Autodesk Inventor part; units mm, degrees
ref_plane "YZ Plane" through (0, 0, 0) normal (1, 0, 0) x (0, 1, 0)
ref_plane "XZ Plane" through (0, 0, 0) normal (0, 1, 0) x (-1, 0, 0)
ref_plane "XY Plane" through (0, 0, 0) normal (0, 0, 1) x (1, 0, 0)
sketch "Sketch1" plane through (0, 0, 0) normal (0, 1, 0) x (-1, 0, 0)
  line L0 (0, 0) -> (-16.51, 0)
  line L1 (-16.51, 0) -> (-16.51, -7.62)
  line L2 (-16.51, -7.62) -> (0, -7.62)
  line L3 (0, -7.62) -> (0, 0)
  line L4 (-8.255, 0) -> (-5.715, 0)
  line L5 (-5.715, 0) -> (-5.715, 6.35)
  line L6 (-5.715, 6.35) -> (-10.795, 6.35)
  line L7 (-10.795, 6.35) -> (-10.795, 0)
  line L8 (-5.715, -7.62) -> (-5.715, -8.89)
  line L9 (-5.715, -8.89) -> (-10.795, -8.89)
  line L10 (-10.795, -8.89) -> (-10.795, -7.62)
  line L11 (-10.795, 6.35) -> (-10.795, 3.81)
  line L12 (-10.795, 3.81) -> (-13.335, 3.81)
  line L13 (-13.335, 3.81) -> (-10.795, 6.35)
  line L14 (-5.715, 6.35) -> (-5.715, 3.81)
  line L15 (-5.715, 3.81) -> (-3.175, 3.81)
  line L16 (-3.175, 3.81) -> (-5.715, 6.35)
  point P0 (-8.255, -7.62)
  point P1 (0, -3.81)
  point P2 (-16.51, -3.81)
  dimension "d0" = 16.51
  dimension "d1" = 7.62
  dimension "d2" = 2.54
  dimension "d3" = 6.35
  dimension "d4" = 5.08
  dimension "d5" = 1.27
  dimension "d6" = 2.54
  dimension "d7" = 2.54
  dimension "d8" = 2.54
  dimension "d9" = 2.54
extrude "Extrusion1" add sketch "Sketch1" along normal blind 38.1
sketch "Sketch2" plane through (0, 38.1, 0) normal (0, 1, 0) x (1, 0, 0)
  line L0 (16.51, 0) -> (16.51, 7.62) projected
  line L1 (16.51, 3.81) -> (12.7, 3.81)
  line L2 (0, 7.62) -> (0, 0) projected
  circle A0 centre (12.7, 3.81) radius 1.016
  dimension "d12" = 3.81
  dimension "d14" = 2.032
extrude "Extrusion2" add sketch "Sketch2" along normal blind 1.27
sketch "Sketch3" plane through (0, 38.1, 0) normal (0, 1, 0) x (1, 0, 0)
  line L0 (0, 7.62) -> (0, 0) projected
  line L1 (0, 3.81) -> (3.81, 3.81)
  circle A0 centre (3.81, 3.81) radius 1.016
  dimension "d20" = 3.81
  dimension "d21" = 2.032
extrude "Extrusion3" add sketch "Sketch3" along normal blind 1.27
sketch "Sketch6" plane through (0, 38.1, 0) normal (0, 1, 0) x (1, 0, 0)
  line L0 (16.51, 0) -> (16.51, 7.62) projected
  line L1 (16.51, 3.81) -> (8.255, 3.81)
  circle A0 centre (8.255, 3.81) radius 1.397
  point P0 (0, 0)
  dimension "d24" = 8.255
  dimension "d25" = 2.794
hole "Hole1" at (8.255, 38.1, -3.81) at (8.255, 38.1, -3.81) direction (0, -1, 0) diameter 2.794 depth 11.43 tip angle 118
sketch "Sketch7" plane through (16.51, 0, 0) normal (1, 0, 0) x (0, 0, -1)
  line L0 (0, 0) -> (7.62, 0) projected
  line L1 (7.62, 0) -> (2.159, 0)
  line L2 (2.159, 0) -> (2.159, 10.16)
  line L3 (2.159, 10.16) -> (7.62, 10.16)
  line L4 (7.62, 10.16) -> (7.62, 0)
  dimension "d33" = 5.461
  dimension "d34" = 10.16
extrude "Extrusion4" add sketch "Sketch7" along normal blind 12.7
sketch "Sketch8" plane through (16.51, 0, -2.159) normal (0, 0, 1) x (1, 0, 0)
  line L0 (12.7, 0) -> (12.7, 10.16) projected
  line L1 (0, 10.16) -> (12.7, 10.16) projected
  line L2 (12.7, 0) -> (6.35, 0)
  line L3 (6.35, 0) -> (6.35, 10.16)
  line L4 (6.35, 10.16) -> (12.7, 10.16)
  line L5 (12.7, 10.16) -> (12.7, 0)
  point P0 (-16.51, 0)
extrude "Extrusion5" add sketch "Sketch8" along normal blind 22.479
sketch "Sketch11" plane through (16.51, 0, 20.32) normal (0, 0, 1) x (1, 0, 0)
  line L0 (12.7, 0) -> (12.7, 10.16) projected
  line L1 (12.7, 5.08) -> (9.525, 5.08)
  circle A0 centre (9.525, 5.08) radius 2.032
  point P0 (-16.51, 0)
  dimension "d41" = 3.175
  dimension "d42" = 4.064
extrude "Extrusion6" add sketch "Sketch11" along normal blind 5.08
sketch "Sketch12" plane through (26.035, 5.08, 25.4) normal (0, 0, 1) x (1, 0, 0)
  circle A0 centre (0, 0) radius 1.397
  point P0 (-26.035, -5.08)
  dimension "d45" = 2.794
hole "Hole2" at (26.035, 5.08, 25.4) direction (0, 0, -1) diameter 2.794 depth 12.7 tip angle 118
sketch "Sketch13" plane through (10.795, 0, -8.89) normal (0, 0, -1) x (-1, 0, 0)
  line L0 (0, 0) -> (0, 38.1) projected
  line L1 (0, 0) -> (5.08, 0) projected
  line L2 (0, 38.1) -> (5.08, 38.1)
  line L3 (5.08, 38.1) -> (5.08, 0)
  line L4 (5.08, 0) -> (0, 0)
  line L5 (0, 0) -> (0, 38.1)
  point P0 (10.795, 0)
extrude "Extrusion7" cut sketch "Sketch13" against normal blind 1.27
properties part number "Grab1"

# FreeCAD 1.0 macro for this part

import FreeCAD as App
import Part
import Sketcher
Q = App.Units.Quantity

doc = App.newDocument("Part")
params = doc.addObject("Spreadsheet::Sheet", "Params")
for row, (alias, value) in enumerate([
    ("sketch1_width", "0.1 in"),
    ("sketch1_width2", "0.2 in"),
    ("sketch1_height", "0.3 in"),
    ("sketch1_height2", "0.05 in"),
    ("pad1_length", "1.5 in"),
    ("sketch2_diameter", "0.08 in"),
    ("pad2_length", "0.05 in"),
    ("sketch3_diameter", "0.08 in"),
    ("pad3_length", "0.05 in"),
    ("sketch4_diameter", "0.11 in"),
    ("hole_diameter", "0.11 in"),
    ("hole_depth", "0.45 in"),
    ("sketch5_width", "0.4 in"),
    ("sketch5_height", "0.215 in"),
    ("pad4_length", "0.5 in"),
    ("sketch6_height", "0.4 in"),
    ("sketch6_width", "0.25 in"),
    ("pad5_length", "0.885 in"),
    ("sketch7_diameter", "0.16 in"),
    ("pad6_length", "0.2 in"),
    ("sketch8_diameter", "0.11 in"),
    ("hole2_diameter", "0.11 in"),
    ("hole2_depth", "0.5 in"),
    ("sketch9_width", "0.2 in"),
    ("sketch9_height", "1.5 in"),
    ("pocket1_length", "0.05 in"),
], start=1):
    params.set(f"A{row}", alias)
    params.set(f"B{row}", "=" + value)
    params.setAlias(f"B{row}", alias)

body = doc.addObject("PartDesign::Body", "Body")

sketch1 = doc.addObject("Sketcher::SketchObject", "Sketch")
body.addObject(sketch1)
sketch1.AttachmentSupport = (doc.XZ_Plane, [""])
sketch1.MapMode = "FlatFace"
sketch1.addGeometry(Part.LineSegment(App.Vector(0, -7.6, 0), App.Vector(0, 0, 0)), False)
sketch1.addGeometry(Part.LineSegment(App.Vector(0, 0, 0), App.Vector(5.7, 0, 0)), False)
sketch1.addGeometry(Part.LineSegment(App.Vector(5.7, 0, 0), App.Vector(5.7, 3.8, 0)), False)
sketch1.addGeometry(Part.LineSegment(App.Vector(5.7, 3.8, 0), App.Vector(3.2, 3.8, 0)), False)
sketch1.addGeometry(Part.LineSegment(App.Vector(3.2, 3.8, 0), App.Vector(5.7, 6.3, 0)), False)
sketch1.addGeometry(Part.LineSegment(App.Vector(5.7, 6.3, 0), App.Vector(10.8, 6.3, 0)), False)
sketch1.addGeometry(Part.LineSegment(App.Vector(10.8, 6.3, 0), App.Vector(13.3, 3.8, 0)), False)
sketch1.addGeometry(Part.LineSegment(App.Vector(13.3, 3.8, 0), App.Vector(10.8, 3.8, 0)), False)
sketch1.addGeometry(Part.LineSegment(App.Vector(10.8, 3.8, 0), App.Vector(10.8, 0, 0)), False)
sketch1.addGeometry(Part.LineSegment(App.Vector(10.8, 0, 0), App.Vector(16.5, 0, 0)), False)
sketch1.addGeometry(Part.LineSegment(App.Vector(16.5, 0, 0), App.Vector(16.5, -7.6, 0)), False)
sketch1.addGeometry(Part.LineSegment(App.Vector(16.5, -7.6, 0), App.Vector(10.8, -7.6, 0)), False)
sketch1.addGeometry(Part.LineSegment(App.Vector(10.8, -7.6, 0), App.Vector(10.8, -8.9, 0)), False)
sketch1.addGeometry(Part.LineSegment(App.Vector(10.8, -8.9, 0), App.Vector(5.7, -8.9, 0)), False)
sketch1.addGeometry(Part.LineSegment(App.Vector(5.7, -8.9, 0), App.Vector(5.7, -7.6, 0)), False)
sketch1.addGeometry(Part.LineSegment(App.Vector(5.7, -7.6, 0), App.Vector(0, -7.6, 0)), False)
sketch1.addConstraint(Sketcher.Constraint("Coincident", 0, 2, 1, 1))
sketch1.addConstraint(Sketcher.Constraint("Coincident", 1, 2, 2, 1))
sketch1.addConstraint(Sketcher.Constraint("Coincident", 2, 2, 3, 1))
sketch1.addConstraint(Sketcher.Constraint("Coincident", 3, 2, 4, 1))
sketch1.addConstraint(Sketcher.Constraint("Coincident", 4, 2, 5, 1))
sketch1.addConstraint(Sketcher.Constraint("Coincident", 5, 2, 6, 1))
sketch1.addConstraint(Sketcher.Constraint("Coincident", 6, 2, 7, 1))
sketch1.addConstraint(Sketcher.Constraint("Coincident", 7, 2, 8, 1))
sketch1.addConstraint(Sketcher.Constraint("Coincident", 8, 2, 9, 1))
sketch1.addConstraint(Sketcher.Constraint("Coincident", 9, 2, 10, 1))
sketch1.addConstraint(Sketcher.Constraint("Coincident", 10, 2, 11, 1))
sketch1.addConstraint(Sketcher.Constraint("Coincident", 11, 2, 12, 1))
sketch1.addConstraint(Sketcher.Constraint("Coincident", 12, 2, 13, 1))
sketch1.addConstraint(Sketcher.Constraint("Coincident", 13, 2, 14, 1))
sketch1.addConstraint(Sketcher.Constraint("Coincident", 14, 2, 15, 1))
sketch1.addConstraint(Sketcher.Constraint("Coincident", 15, 2, 0, 1))
sketch1.addConstraint(Sketcher.Constraint("Vertical", 0))
sketch1.addConstraint(Sketcher.Constraint("Horizontal", 1))
sketch1.addConstraint(Sketcher.Constraint("Vertical", 2))
sketch1.addConstraint(Sketcher.Constraint("Horizontal", 3))
sketch1.addConstraint(Sketcher.Constraint("Horizontal", 5))
sketch1.addConstraint(Sketcher.Constraint("Horizontal", 7))
sketch1.addConstraint(Sketcher.Constraint("Vertical", 8))
sketch1.addConstraint(Sketcher.Constraint("Horizontal", 9))
sketch1.addConstraint(Sketcher.Constraint("Vertical", 10))
sketch1.addConstraint(Sketcher.Constraint("Horizontal", 11))
sketch1.addConstraint(Sketcher.Constraint("Vertical", 12))
sketch1.addConstraint(Sketcher.Constraint("Horizontal", 13))
sketch1.addConstraint(Sketcher.Constraint("Vertical", 14))
sketch1.addConstraint(Sketcher.Constraint("Horizontal", 15))
sketch1.addConstraint(Sketcher.Constraint("Coincident", 0, 2, -1, 1))
sketch1.addConstraint(Sketcher.Constraint("PointOnObject", 8, 2, -1))
sketch1.addConstraint(Sketcher.Constraint("Perpendicular", 4, 6))
sketch1.addConstraint(Sketcher.Constraint("Horizontal", 3, 2, 6, 2))
sketch1.addConstraint(Sketcher.Constraint("Horizontal", 11, 2, 14, 2))
sketch1.addConstraint(Sketcher.Constraint("Vertical", 2, 2, 4, 2))
sketch1.addConstraint(Sketcher.Constraint("Vertical", 5, 2, 7, 2))
sketch1.addConstraint(Sketcher.Constraint("Vertical", 8, 2, 11, 2))
sketch1.addConstraint(Sketcher.Constraint("Vertical", 4, 2, 13, 2))
sketch1.addConstraint(Sketcher.Constraint("Equal", 3, 7))
sketch1.addConstraint(Sketcher.Constraint("Equal", 1, 9))
sketch1.addConstraint(Sketcher.Constraint("DistanceX", 3, 2, 3, 1, Q("0.1 in")))
sketch1.addConstraint(Sketcher.Constraint("DistanceX", 5, 1, 5, 2, Q("0.2 in")))
sketch1.addConstraint(Sketcher.Constraint("DistanceY", 0, 1, 0, 2, Q("0.3 in")))
sketch1.addConstraint(Sketcher.Constraint("DistanceY", 12, 2, 12, 1, Q("0.05 in")))
sketch1.addConstraint(Sketcher.Constraint("DistanceY", -1, 1, 4, 2, Q("0.25 in")))
sketch1.addConstraint(Sketcher.Constraint("DistanceX", -1, 1, 9, 2, Q("0.65 in")))
sketch1.setExpression("Constraints[41]", "Params.sketch1_width")
sketch1.setExpression("Constraints[42]", "Params.sketch1_width2")
sketch1.setExpression("Constraints[43]", "Params.sketch1_height")
sketch1.setExpression("Constraints[44]", "Params.sketch1_height2")
pad1 = doc.addObject("PartDesign::Pad", "Pad")
body.addObject(pad1)
pad1.Profile = sketch1
pad1.setExpression("Length", "Params.pad1_length")
pad1.Reversed = True

sketch2 = doc.addObject("Sketcher::SketchObject", "Sketch001")
body.addObject(sketch2)
sketch2.AttachmentSupport = (doc.XZ_Plane, [""])
sketch2.MapMode = "FlatFace"
sketch2.AttachmentOffset = App.Placement(App.Vector(0, 0, -1.5 * 25.4), App.Rotation())
sketch2.addGeometry(Part.Circle(App.Vector(12.7, -3.8, 0), App.Vector(0, 0, 1), 1), False)
sketch2.addConstraint(Sketcher.Constraint("Diameter", 0, Q("0.08 in")))
sketch2.addConstraint(Sketcher.Constraint("DistanceY", 0, 3, -1, 1, Q("0.15 in")))
sketch2.addConstraint(Sketcher.Constraint("DistanceX", -1, 1, 0, 3, Q("0.5 in")))
sketch2.setExpression("Constraints[0]", "Params.sketch2_diameter")
pad2 = doc.addObject("PartDesign::Pad", "Pad001")
body.addObject(pad2)
pad2.Profile = sketch2
pad2.setExpression("Length", "Params.pad2_length")
pad2.Reversed = True

sketch3 = doc.addObject("Sketcher::SketchObject", "Sketch002")
body.addObject(sketch3)
sketch3.AttachmentSupport = (doc.XZ_Plane, [""])
sketch3.MapMode = "FlatFace"
sketch3.AttachmentOffset = App.Placement(App.Vector(0, 0, -1.5 * 25.4), App.Rotation())
sketch3.addGeometry(Part.Circle(App.Vector(3.8, -3.8, 0), App.Vector(0, 0, 1), 1), False)
sketch3.addConstraint(Sketcher.Constraint("Diameter", 0, Q("0.08 in")))
sketch3.addConstraint(Sketcher.Constraint("DistanceX", -1, 1, 0, 3, Q("0.15 in")))
sketch3.addConstraint(Sketcher.Constraint("DistanceY", 0, 3, -1, 1, Q("0.15 in")))
sketch3.setExpression("Constraints[0]", "Params.sketch3_diameter")
pad3 = doc.addObject("PartDesign::Pad", "Pad002")
body.addObject(pad3)
pad3.Profile = sketch3
pad3.setExpression("Length", "Params.pad3_length")
pad3.Reversed = True

sketch4 = doc.addObject("Sketcher::SketchObject", "Sketch003")
body.addObject(sketch4)
sketch4.AttachmentSupport = (doc.XZ_Plane, [""])
sketch4.MapMode = "FlatFace"
sketch4.AttachmentOffset = App.Placement(App.Vector(0, 0, -1.5 * 25.4), App.Rotation())
sketch4.addGeometry(Part.Circle(App.Vector(8.3, -3.8, 0), App.Vector(0, 0, 1), 1.4), False)
sketch4.addGeometry(Part.Circle(App.Vector(8.3, -3.8, 0), App.Vector(0, 0, 1), 1.4), False)
sketch4.addConstraint(Sketcher.Constraint("Coincident", 1, 3, 0, 3))
sketch4.addConstraint(Sketcher.Constraint("Equal", 0, 1))
sketch4.addConstraint(Sketcher.Constraint("Diameter", 0, Q("0.11 in")))
sketch4.addConstraint(Sketcher.Constraint("DistanceY", 0, 3, -1, 1, Q("0.15 in")))
sketch4.addConstraint(Sketcher.Constraint("DistanceX", -1, 1, 0, 3, Q("0.325 in")))
sketch4.setExpression("Constraints[2]", "Params.sketch4_diameter")
doc.recompute()
hole = doc.addObject("PartDesign::Hole", "Hole")
body.addObject(hole)
hole.Profile = sketch4
hole.ThreadType = "None"
hole.setExpression("Diameter", "Params.hole_diameter")
hole.DepthType = "Dimension"
hole.setExpression("Depth", "Params.hole_depth")
hole.DrillPoint = "Angled"
hole.DrillPointAngle = 118
hole.Reversed = True

sketch5 = doc.addObject("Sketcher::SketchObject", "Sketch004")
body.addObject(sketch5)
sketch5.AttachmentSupport = (doc.YZ_Plane, [""])
sketch5.MapMode = "FlatFace"
sketch5.AttachmentOffset = App.Placement(App.Vector(0, 0, 0.65 * 25.4), App.Rotation())
sketch5.addGeometry(Part.LineSegment(App.Vector(10, -2, 0), App.Vector(0, -2, 0)), False)
sketch5.addGeometry(Part.LineSegment(App.Vector(0, -2, 0), App.Vector(0, -8, 0)), False)
sketch5.addGeometry(Part.LineSegment(App.Vector(0, -8, 0), App.Vector(10, -8, 0)), False)
sketch5.addGeometry(Part.LineSegment(App.Vector(10, -8, 0), App.Vector(10, -2, 0)), False)
sketch5.addConstraint(Sketcher.Constraint("Coincident", 0, 2, 1, 1))
sketch5.addConstraint(Sketcher.Constraint("Coincident", 1, 2, 2, 1))
sketch5.addConstraint(Sketcher.Constraint("Coincident", 2, 2, 3, 1))
sketch5.addConstraint(Sketcher.Constraint("Coincident", 3, 2, 0, 1))
sketch5.addConstraint(Sketcher.Constraint("Horizontal", 0))
sketch5.addConstraint(Sketcher.Constraint("Vertical", 1))
sketch5.addConstraint(Sketcher.Constraint("Horizontal", 2))
sketch5.addConstraint(Sketcher.Constraint("Vertical", 3))
sketch5.addConstraint(Sketcher.Constraint("PointOnObject", 0, 2, -2))
sketch5.addConstraint(Sketcher.Constraint("DistanceX", 0, 2, 0, 1, Q("0.4 in")))
sketch5.addConstraint(Sketcher.Constraint("DistanceY", 1, 2, 1, 1, Q("0.215 in")))
sketch5.addConstraint(Sketcher.Constraint("DistanceY", 1, 2, -1, 1, Q("0.3 in")))
sketch5.setExpression("Constraints[9]", "Params.sketch5_width")
sketch5.setExpression("Constraints[10]", "Params.sketch5_height")
pad4 = doc.addObject("PartDesign::Pad", "Pad003")
body.addObject(pad4)
pad4.Profile = sketch5
pad4.setExpression("Length", "Params.pad4_length")

sketch6 = doc.addObject("Sketcher::SketchObject", "Sketch005")
body.addObject(sketch6)
sketch6.AttachmentSupport = (doc.XY_Plane, [""])
sketch6.MapMode = "FlatFace"
sketch6.AttachmentOffset = App.Placement(App.Vector(0, 0, -0.085 * 25.4), App.Rotation())
sketch6.addGeometry(Part.LineSegment(App.Vector(23, 0, 0), App.Vector(29, 0, 0)), False)
sketch6.addGeometry(Part.LineSegment(App.Vector(29, 0, 0), App.Vector(29, 10, 0)), False)
sketch6.addGeometry(Part.LineSegment(App.Vector(29, 10, 0), App.Vector(23, 10, 0)), False)
sketch6.addGeometry(Part.LineSegment(App.Vector(23, 10, 0), App.Vector(23, 0, 0)), False)
sketch6.addConstraint(Sketcher.Constraint("Coincident", 0, 2, 1, 1))
sketch6.addConstraint(Sketcher.Constraint("Coincident", 1, 2, 2, 1))
sketch6.addConstraint(Sketcher.Constraint("Coincident", 2, 2, 3, 1))
sketch6.addConstraint(Sketcher.Constraint("Coincident", 3, 2, 0, 1))
sketch6.addConstraint(Sketcher.Constraint("Horizontal", 0))
sketch6.addConstraint(Sketcher.Constraint("Vertical", 1))
sketch6.addConstraint(Sketcher.Constraint("Horizontal", 2))
sketch6.addConstraint(Sketcher.Constraint("Vertical", 3))
sketch6.addConstraint(Sketcher.Constraint("PointOnObject", 0, 2, -1))
sketch6.addConstraint(Sketcher.Constraint("DistanceY", 1, 1, 1, 2, Q("0.4 in")))
sketch6.addConstraint(Sketcher.Constraint("DistanceX", 0, 1, 0, 2, Q("0.25 in")))
sketch6.addConstraint(Sketcher.Constraint("DistanceX", -1, 1, 2, 2, Q("0.9 in")))
sketch6.setExpression("Constraints[9]", "Params.sketch6_height")
sketch6.setExpression("Constraints[10]", "Params.sketch6_width")
pad5 = doc.addObject("PartDesign::Pad", "Pad004")
body.addObject(pad5)
pad5.Profile = sketch6
pad5.setExpression("Length", "Params.pad5_length")

sketch7 = doc.addObject("Sketcher::SketchObject", "Sketch006")
body.addObject(sketch7)
sketch7.AttachmentSupport = (doc.XY_Plane, [""])
sketch7.MapMode = "FlatFace"
sketch7.AttachmentOffset = App.Placement(App.Vector(0, 0, 0.8 * 25.4), App.Rotation())
sketch7.addGeometry(Part.Circle(App.Vector(26, 5.1, 0), App.Vector(0, 0, 1), 2), False)
sketch7.addConstraint(Sketcher.Constraint("Diameter", 0, Q("0.16 in")))
sketch7.addConstraint(Sketcher.Constraint("DistanceY", -1, 1, 0, 3, Q("0.2 in")))
sketch7.addConstraint(Sketcher.Constraint("DistanceX", -1, 1, 0, 3, Q("1.025 in")))
sketch7.setExpression("Constraints[0]", "Params.sketch7_diameter")
pad6 = doc.addObject("PartDesign::Pad", "Pad005")
body.addObject(pad6)
pad6.Profile = sketch7
pad6.setExpression("Length", "Params.pad6_length")

sketch8 = doc.addObject("Sketcher::SketchObject", "Sketch007")
body.addObject(sketch8)
sketch8.AttachmentSupport = (doc.XY_Plane, [""])
sketch8.MapMode = "FlatFace"
sketch8.AttachmentOffset = App.Placement(App.Vector(0, 0, 1 * 25.4), App.Rotation())
sketch8.addGeometry(Part.Circle(App.Vector(26, 5.1, 0), App.Vector(0, 0, 1), 1.4), False)
sketch8.addConstraint(Sketcher.Constraint("Diameter", 0, Q("0.11 in")))
sketch8.addConstraint(Sketcher.Constraint("DistanceY", -1, 1, 0, 3, Q("0.2 in")))
sketch8.addConstraint(Sketcher.Constraint("DistanceX", -1, 1, 0, 3, Q("1.025 in")))
sketch8.setExpression("Constraints[0]", "Params.sketch8_diameter")
doc.recompute()
hole2 = doc.addObject("PartDesign::Hole", "Hole001")
body.addObject(hole2)
hole2.Profile = sketch8
hole2.ThreadType = "None"
hole2.setExpression("Diameter", "Params.hole2_diameter")
hole2.DepthType = "Dimension"
hole2.setExpression("Depth", "Params.hole2_depth")
hole2.DrillPoint = "Angled"
hole2.DrillPointAngle = 118

sketch9 = doc.addObject("Sketcher::SketchObject", "Sketch008")
body.addObject(sketch9)
sketch9.AttachmentSupport = (doc.XY_Plane, [""])
sketch9.MapMode = "FlatFace"
sketch9.AttachmentOffset = App.Placement(App.Vector(0, 0, -0.35 * 25.4), App.Rotation())
sketch9.addGeometry(Part.LineSegment(App.Vector(11, 38, 0), App.Vector(11, 0, 0)), False)
sketch9.addGeometry(Part.LineSegment(App.Vector(11, 0, 0), App.Vector(6, 0, 0)), False)
sketch9.addGeometry(Part.LineSegment(App.Vector(6, 0, 0), App.Vector(6, 38, 0)), False)
sketch9.addGeometry(Part.LineSegment(App.Vector(6, 38, 0), App.Vector(11, 38, 0)), False)
sketch9.addConstraint(Sketcher.Constraint("Coincident", 0, 2, 1, 1))
sketch9.addConstraint(Sketcher.Constraint("Coincident", 1, 2, 2, 1))
sketch9.addConstraint(Sketcher.Constraint("Coincident", 2, 2, 3, 1))
sketch9.addConstraint(Sketcher.Constraint("Coincident", 3, 2, 0, 1))
sketch9.addConstraint(Sketcher.Constraint("Vertical", 0))
sketch9.addConstraint(Sketcher.Constraint("Horizontal", 1))
sketch9.addConstraint(Sketcher.Constraint("Vertical", 2))
sketch9.addConstraint(Sketcher.Constraint("Horizontal", 3))
sketch9.addConstraint(Sketcher.Constraint("PointOnObject", 0, 2, -1))
sketch9.addConstraint(Sketcher.Constraint("DistanceX", 1, 2, 1, 1, Q("0.2 in")))
sketch9.addConstraint(Sketcher.Constraint("DistanceY", 0, 2, 0, 1, Q("1.5 in")))
sketch9.addConstraint(Sketcher.Constraint("DistanceX", -1, 1, 0, 2, Q("0.425 in")))
sketch9.setExpression("Constraints[9]", "Params.sketch9_width")
sketch9.setExpression("Constraints[10]", "Params.sketch9_height")
pocket1 = doc.addObject("PartDesign::Pocket", "Pocket")
body.addObject(pocket1)
pocket1.Profile = sketch9
pocket1.setExpression("Length", "Params.pocket1_length")
pocket1.Reversed = True

doc.recompute()
